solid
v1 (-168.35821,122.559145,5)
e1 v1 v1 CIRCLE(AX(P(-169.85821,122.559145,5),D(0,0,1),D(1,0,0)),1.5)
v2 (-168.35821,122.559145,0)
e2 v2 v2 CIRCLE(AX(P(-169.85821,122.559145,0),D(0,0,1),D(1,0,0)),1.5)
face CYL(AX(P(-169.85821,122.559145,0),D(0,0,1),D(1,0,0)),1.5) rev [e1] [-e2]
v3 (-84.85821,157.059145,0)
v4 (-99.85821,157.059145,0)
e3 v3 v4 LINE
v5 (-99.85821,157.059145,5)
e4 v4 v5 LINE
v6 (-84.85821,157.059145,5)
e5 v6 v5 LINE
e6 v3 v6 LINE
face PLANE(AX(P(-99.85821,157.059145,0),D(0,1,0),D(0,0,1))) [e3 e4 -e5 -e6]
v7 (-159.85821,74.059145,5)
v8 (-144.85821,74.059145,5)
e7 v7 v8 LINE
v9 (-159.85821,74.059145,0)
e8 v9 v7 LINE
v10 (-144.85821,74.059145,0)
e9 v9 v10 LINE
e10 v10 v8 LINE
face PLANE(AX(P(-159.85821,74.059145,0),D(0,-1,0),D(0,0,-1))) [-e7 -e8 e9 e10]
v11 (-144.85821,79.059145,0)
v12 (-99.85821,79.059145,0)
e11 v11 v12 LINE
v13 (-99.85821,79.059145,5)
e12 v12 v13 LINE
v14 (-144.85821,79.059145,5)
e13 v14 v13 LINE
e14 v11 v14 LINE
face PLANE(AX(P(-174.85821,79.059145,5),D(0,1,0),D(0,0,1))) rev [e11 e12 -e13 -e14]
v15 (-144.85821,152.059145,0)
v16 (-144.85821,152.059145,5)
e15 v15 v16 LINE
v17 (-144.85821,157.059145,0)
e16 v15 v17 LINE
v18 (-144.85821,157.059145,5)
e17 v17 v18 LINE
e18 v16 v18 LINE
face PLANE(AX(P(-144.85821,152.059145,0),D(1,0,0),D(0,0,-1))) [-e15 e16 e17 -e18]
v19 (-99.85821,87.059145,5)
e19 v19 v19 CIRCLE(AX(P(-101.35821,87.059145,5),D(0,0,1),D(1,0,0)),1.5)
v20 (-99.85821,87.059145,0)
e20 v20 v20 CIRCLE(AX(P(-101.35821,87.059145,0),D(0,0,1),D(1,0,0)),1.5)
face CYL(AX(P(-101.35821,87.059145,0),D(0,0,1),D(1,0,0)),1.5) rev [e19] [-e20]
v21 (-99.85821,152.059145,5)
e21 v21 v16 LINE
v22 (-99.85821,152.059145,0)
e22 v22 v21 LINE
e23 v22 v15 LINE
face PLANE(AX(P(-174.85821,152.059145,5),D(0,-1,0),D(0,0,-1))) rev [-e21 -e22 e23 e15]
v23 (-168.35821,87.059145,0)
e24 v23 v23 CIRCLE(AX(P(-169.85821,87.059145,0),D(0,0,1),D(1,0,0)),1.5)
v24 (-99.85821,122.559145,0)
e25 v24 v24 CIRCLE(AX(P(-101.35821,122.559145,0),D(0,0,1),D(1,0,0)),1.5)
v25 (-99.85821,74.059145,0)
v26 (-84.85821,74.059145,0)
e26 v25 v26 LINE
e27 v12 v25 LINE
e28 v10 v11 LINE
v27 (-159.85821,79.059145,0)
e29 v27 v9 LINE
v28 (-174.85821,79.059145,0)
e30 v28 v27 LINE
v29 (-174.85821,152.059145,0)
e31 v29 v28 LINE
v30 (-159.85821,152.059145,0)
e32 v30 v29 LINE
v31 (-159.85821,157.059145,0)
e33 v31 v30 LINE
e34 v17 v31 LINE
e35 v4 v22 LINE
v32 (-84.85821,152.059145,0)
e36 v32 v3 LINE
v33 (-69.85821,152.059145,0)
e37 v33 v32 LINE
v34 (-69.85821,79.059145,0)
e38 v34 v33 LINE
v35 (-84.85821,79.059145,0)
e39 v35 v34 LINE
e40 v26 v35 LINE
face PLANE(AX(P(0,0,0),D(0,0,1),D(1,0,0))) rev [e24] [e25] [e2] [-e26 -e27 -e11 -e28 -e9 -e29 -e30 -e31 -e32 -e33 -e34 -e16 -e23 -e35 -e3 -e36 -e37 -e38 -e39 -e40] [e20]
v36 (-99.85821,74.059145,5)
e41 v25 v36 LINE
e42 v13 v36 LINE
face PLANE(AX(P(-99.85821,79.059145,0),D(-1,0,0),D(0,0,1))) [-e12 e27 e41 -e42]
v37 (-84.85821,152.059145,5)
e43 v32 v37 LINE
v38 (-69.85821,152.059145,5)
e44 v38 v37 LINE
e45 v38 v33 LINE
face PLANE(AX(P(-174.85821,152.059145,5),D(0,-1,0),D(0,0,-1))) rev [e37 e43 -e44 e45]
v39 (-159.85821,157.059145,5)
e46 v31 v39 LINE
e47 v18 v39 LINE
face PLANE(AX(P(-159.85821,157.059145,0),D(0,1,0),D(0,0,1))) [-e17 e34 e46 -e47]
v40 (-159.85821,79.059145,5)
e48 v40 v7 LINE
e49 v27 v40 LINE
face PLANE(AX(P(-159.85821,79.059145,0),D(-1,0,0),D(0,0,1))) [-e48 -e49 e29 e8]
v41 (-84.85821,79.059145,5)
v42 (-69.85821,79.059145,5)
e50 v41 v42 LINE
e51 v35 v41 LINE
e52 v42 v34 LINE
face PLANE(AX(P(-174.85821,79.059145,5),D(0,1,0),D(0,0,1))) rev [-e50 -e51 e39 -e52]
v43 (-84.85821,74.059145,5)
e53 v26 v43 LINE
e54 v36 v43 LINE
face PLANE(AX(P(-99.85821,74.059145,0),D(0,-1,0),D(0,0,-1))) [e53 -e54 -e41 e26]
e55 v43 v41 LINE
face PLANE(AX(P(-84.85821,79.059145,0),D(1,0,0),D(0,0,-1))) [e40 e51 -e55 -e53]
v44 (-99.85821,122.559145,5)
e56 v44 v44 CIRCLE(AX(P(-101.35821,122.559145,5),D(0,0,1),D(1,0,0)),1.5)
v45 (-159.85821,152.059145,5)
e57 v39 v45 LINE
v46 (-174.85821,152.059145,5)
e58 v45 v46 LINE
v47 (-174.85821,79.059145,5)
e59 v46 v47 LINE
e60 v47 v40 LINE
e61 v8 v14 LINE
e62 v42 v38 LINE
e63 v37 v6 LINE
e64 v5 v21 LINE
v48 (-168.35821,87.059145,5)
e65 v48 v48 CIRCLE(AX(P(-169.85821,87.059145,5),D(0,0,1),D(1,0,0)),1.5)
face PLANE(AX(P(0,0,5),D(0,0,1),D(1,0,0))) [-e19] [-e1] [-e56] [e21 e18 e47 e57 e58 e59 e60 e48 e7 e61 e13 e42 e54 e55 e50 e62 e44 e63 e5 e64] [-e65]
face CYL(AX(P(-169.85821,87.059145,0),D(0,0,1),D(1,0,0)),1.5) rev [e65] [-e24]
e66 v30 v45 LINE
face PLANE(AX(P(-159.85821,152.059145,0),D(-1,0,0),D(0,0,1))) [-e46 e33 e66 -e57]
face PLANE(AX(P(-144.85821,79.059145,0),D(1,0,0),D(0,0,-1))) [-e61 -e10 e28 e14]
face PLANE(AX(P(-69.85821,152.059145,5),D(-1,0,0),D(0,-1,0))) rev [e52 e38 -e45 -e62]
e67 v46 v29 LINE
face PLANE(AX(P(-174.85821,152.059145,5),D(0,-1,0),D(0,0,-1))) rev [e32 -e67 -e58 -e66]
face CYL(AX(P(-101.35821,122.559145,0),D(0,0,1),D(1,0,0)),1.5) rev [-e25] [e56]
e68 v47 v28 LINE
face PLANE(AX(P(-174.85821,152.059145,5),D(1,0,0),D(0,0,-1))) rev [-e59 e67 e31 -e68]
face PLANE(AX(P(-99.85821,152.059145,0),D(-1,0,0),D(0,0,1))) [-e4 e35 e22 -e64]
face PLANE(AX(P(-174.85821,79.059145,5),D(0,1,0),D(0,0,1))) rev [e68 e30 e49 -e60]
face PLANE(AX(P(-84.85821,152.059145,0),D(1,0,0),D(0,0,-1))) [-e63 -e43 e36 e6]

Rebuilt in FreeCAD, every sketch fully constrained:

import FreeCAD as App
import Part
import Sketcher

V = App.Vector
Q = App.Units.Quantity

doc = App.newDocument("Part")
body = doc.addObject("PartDesign::Body", "Body")

# Sketch on XY plane
sketch1 = body.newObject("Sketcher::SketchObject", "Sketch")
sketch1.AttachmentSupport = (doc.getObject("XY_Plane"), [""])
sketch1.MapMode = "FlatFace"
sketch1.addGeometry(Part.LineSegment(V(-175, 152, 0), V(-175, 79, 0)), False)
sketch1.addGeometry(Part.LineSegment(V(-175, 79, 0), V(-70, 79, 0)), False)
sketch1.addGeometry(Part.LineSegment(V(-70, 79, 0), V(-70, 152, 0)), False)
sketch1.addGeometry(Part.LineSegment(V(-70, 152, 0), V(-175, 152, 0)), False)
sketch1.addConstraint(Sketcher.Constraint("Coincident", 0, 2, 1, 1))
sketch1.addConstraint(Sketcher.Constraint("Coincident", 1, 2, 2, 1))
sketch1.addConstraint(Sketcher.Constraint("Coincident", 2, 2, 3, 1))
sketch1.addConstraint(Sketcher.Constraint("Coincident", 3, 2, 0, 1))
sketch1.addConstraint(Sketcher.Constraint("Vertical", 0))
sketch1.addConstraint(Sketcher.Constraint("Horizontal", 1))
sketch1.addConstraint(Sketcher.Constraint("Vertical", 2))
sketch1.addConstraint(Sketcher.Constraint("Horizontal", 3))
sketch1.addConstraint(Sketcher.Constraint("DistanceX", 1, 1, 1, 2, Q("105 mm")))
sketch1.addConstraint(Sketcher.Constraint("DistanceY", 0, 2, 0, 1, Q("73 mm")))
sketch1.addConstraint(Sketcher.Constraint("DistanceX", 0, 2, -1, 1, Q("174.85821 mm")))
sketch1.addConstraint(Sketcher.Constraint("DistanceY", -1, 1, 0, 2, Q("79.059145 mm")))
pad1 = body.newObject("PartDesign::Pad", "Pad")
pad1.Profile = sketch1
pad1.Length = 5

# Sketch on XY plane
sketch2 = body.newObject("Sketcher::SketchObject", "Sketch001")
sketch2.AttachmentSupport = (doc.getObject("XY_Plane"), [""])
sketch2.MapMode = "FlatFace"
sketch2.AttachmentOffset = App.Placement(V(0, 0, 5), App.Rotation())
sketch2.addGeometry(Part.Circle(V(-101.4, 122.6, 0), V(0, 0, 1), 1.5), False)
sketch2.addGeometry(Part.Circle(V(-169.9, 122.6, 0), V(0, 0, 1), 1.5), False)
sketch2.addGeometry(Part.Circle(V(-169.9, 87.1, 0), V(0, 0, 1), 1.5), False)
sketch2.addGeometry(Part.Circle(V(-101.4, 87.1, 0), V(0, 0, 1), 1.5), False)
sketch2.addConstraint(Sketcher.Constraint("Equal", 0, 1))
sketch2.addConstraint(Sketcher.Constraint("Equal", 1, 2))
sketch2.addConstraint(Sketcher.Constraint("Equal", 2, 3))
sketch2.addConstraint(Sketcher.Constraint("Horizontal", 0, 3, 1, 3))
sketch2.addConstraint(Sketcher.Constraint("Horizontal", 2, 3, 3, 3))
sketch2.addConstraint(Sketcher.Constraint("Vertical", 1, 3, 2, 3))
sketch2.addConstraint(Sketcher.Constraint("Vertical", 0, 3, 3, 3))
sketch2.addConstraint(Sketcher.Constraint("Diameter", 0, Q("3 mm")))
sketch2.addConstraint(Sketcher.Constraint("DistanceX", 1, 3, 0, 3, Q("68.5 mm")))
sketch2.addConstraint(Sketcher.Constraint("DistanceY", 2, 3, 1, 3, Q("35.5 mm")))
sketch2.addConstraint(Sketcher.Constraint("DistanceX", 0, 3, -1, 1, Q("101.35821 mm")))
sketch2.addConstraint(Sketcher.Constraint("DistanceY", -1, 1, 0, 3, Q("122.559145 mm")))
pocket1 = body.newObject("PartDesign::Pocket", "Pocket")
pocket1.Profile = sketch2
pocket1.Length = 5

# Sketch on XY plane
sketch3 = body.newObject("Sketcher::SketchObject", "Sketch002")
sketch3.AttachmentSupport = (doc.getObject("XY_Plane"), [""])
sketch3.MapMode = "FlatFace"
sketch3.AttachmentOffset = App.Placement(V(0, 0, 5), App.Rotation())
sketch3.addGeometry(Part.LineSegment(V(-160, 79, 0), V(-160, 74, 0)), False)
sketch3.addGeometry(Part.LineSegment(V(-160, 74, 0), V(-145, 74, 0)), False)
sketch3.addGeometry(Part.LineSegment(V(-145, 74, 0), V(-145, 79, 0)), False)
sketch3.addGeometry(Part.LineSegment(V(-145, 79, 0), V(-160, 79, 0)), False)
sketch3.addGeometry(Part.LineSegment(V(-100, 79, 0), V(-100, 74, 0)), False)
sketch3.addGeometry(Part.LineSegment(V(-100, 74, 0), V(-85, 74, 0)), False)
sketch3.addGeometry(Part.LineSegment(V(-85, 74, 0), V(-85, 79, 0)), False)
sketch3.addGeometry(Part.LineSegment(V(-85, 79, 0), V(-100, 79, 0)), False)
sketch3.addGeometry(Part.LineSegment(V(-100, 157, 0), V(-100, 152, 0)), False)
sketch3.addGeometry(Part.LineSegment(V(-100, 152, 0), V(-85, 152, 0)), False)
sketch3.addGeometry(Part.LineSegment(V(-85, 152, 0), V(-85, 157, 0)), False)
sketch3.addGeometry(Part.LineSegment(V(-85, 157, 0), V(-100, 157, 0)), False)
sketch3.addGeometry(Part.LineSegment(V(-160, 157, 0), V(-160, 152, 0)), False)
sketch3.addGeometry(Part.LineSegment(V(-160, 152, 0), V(-145, 152, 0)), False)
sketch3.addGeometry(Part.LineSegment(V(-145, 152, 0), V(-145, 157, 0)), False)
sketch3.addGeometry(Part.LineSegment(V(-145, 157, 0), V(-160, 157, 0)), False)
sketch3.addConstraint(Sketcher.Constraint("Coincident", 0, 2, 1, 1))
sketch3.addConstraint(Sketcher.Constraint("Coincident", 1, 2, 2, 1))
sketch3.addConstraint(Sketcher.Constraint("Coincident", 2, 2, 3, 1))
sketch3.addConstraint(Sketcher.Constraint("Coincident", 3, 2, 0, 1))
sketch3.addConstraint(Sketcher.Constraint("Coincident", 4, 2, 5, 1))
sketch3.addConstraint(Sketcher.Constraint("Coincident", 5, 2, 6, 1))
sketch3.addConstraint(Sketcher.Constraint("Coincident", 6, 2, 7, 1))
sketch3.addConstraint(Sketcher.Constraint("Coincident", 7, 2, 4, 1))
sketch3.addConstraint(Sketcher.Constraint("Coincident", 8, 2, 9, 1))
sketch3.addConstraint(Sketcher.Constraint("Coincident", 9, 2, 10, 1))
sketch3.addConstraint(Sketcher.Constraint("Coincident", 10, 2, 11, 1))
sketch3.addConstraint(Sketcher.Constraint("Coincident", 11, 2, 8, 1))
sketch3.addConstraint(Sketcher.Constraint("Coincident", 12, 2, 13, 1))
sketch3.addConstraint(Sketcher.Constraint("Coincident", 13, 2, 14, 1))
sketch3.addConstraint(Sketcher.Constraint("Coincident", 14, 2, 15, 1))
sketch3.addConstraint(Sketcher.Constraint("Coincident", 15, 2, 12, 1))
sketch3.addConstraint(Sketcher.Constraint("Vertical", 0))
sketch3.addConstraint(Sketcher.Constraint("Horizontal", 1))
sketch3.addConstraint(Sketcher.Constraint("Vertical", 2))
sketch3.addConstraint(Sketcher.Constraint("Horizontal", 3))
sketch3.addConstraint(Sketcher.Constraint("Vertical", 4))
sketch3.addConstraint(Sketcher.Constraint("Horizontal", 5))
sketch3.addConstraint(Sketcher.Constraint("Vertical", 6))
sketch3.addConstraint(Sketcher.Constraint("Horizontal", 7))
sketch3.addConstraint(Sketcher.Constraint("Vertical", 8))
sketch3.addConstraint(Sketcher.Constraint("Horizontal", 9))
sketch3.addConstraint(Sketcher.Constraint("Vertical", 10))
sketch3.addConstraint(Sketcher.Constraint("Horizontal", 11))
sketch3.addConstraint(Sketcher.Constraint("Vertical", 12))
sketch3.addConstraint(Sketcher.Constraint("Horizontal", 13))
sketch3.addConstraint(Sketcher.Constraint("Vertical", 14))
sketch3.addConstraint(Sketcher.Constraint("Horizontal", 15))
sketch3.addConstraint(Sketcher.Constraint("Horizontal", 1, 2, 4, 2))
sketch3.addConstraint(Sketcher.Constraint("Horizontal", 3, 2, 6, 2))
sketch3.addConstraint(Sketcher.Constraint("Horizontal", 9, 2, 12, 2))
sketch3.addConstraint(Sketcher.Constraint("Horizontal", 11, 2, 14, 2))
sketch3.addConstraint(Sketcher.Constraint("Vertical", 7, 2, 8, 2))
sketch3.addConstraint(Sketcher.Constraint("Vertical", 6, 2, 9, 2))
sketch3.addConstraint(Sketcher.Constraint("Vertical", 3, 2, 12, 2))
sketch3.addConstraint(Sketcher.Constraint("Vertical", 2, 2, 13, 2))
sketch3.addConstraint(Sketcher.Constraint("Equal", 3, 5))
sketch3.addConstraint(Sketcher.Constraint("Equal", 6, 8))
sketch3.addConstraint(Sketcher.Constraint("DistanceX", 1, 1, 1, 2, Q("15 mm")))
sketch3.addConstraint(Sketcher.Constraint("DistanceY", 0, 2, 0, 1, Q("5 mm")))
sketch3.addConstraint(Sketcher.Constraint("DistanceX", 1, 2, 4, 2, Q("45 mm")))
sketch3.addConstraint(Sketcher.Constraint("DistanceY", 7, 2, 8, 2, Q("73 mm")))
sketch3.addConstraint(Sketcher.Constraint("DistanceX", 0, 2, -1, 1, Q("159.85821 mm")))
sketch3.addConstraint(Sketcher.Constraint("DistanceY", -1, 1, 0, 2, Q("74.059145 mm")))
pad2 = body.newObject("PartDesign::Pad", "Pad001")
pad2.Profile = sketch3
pad2.Length = 5
pad2.Reversed = True

doc.recompute()
